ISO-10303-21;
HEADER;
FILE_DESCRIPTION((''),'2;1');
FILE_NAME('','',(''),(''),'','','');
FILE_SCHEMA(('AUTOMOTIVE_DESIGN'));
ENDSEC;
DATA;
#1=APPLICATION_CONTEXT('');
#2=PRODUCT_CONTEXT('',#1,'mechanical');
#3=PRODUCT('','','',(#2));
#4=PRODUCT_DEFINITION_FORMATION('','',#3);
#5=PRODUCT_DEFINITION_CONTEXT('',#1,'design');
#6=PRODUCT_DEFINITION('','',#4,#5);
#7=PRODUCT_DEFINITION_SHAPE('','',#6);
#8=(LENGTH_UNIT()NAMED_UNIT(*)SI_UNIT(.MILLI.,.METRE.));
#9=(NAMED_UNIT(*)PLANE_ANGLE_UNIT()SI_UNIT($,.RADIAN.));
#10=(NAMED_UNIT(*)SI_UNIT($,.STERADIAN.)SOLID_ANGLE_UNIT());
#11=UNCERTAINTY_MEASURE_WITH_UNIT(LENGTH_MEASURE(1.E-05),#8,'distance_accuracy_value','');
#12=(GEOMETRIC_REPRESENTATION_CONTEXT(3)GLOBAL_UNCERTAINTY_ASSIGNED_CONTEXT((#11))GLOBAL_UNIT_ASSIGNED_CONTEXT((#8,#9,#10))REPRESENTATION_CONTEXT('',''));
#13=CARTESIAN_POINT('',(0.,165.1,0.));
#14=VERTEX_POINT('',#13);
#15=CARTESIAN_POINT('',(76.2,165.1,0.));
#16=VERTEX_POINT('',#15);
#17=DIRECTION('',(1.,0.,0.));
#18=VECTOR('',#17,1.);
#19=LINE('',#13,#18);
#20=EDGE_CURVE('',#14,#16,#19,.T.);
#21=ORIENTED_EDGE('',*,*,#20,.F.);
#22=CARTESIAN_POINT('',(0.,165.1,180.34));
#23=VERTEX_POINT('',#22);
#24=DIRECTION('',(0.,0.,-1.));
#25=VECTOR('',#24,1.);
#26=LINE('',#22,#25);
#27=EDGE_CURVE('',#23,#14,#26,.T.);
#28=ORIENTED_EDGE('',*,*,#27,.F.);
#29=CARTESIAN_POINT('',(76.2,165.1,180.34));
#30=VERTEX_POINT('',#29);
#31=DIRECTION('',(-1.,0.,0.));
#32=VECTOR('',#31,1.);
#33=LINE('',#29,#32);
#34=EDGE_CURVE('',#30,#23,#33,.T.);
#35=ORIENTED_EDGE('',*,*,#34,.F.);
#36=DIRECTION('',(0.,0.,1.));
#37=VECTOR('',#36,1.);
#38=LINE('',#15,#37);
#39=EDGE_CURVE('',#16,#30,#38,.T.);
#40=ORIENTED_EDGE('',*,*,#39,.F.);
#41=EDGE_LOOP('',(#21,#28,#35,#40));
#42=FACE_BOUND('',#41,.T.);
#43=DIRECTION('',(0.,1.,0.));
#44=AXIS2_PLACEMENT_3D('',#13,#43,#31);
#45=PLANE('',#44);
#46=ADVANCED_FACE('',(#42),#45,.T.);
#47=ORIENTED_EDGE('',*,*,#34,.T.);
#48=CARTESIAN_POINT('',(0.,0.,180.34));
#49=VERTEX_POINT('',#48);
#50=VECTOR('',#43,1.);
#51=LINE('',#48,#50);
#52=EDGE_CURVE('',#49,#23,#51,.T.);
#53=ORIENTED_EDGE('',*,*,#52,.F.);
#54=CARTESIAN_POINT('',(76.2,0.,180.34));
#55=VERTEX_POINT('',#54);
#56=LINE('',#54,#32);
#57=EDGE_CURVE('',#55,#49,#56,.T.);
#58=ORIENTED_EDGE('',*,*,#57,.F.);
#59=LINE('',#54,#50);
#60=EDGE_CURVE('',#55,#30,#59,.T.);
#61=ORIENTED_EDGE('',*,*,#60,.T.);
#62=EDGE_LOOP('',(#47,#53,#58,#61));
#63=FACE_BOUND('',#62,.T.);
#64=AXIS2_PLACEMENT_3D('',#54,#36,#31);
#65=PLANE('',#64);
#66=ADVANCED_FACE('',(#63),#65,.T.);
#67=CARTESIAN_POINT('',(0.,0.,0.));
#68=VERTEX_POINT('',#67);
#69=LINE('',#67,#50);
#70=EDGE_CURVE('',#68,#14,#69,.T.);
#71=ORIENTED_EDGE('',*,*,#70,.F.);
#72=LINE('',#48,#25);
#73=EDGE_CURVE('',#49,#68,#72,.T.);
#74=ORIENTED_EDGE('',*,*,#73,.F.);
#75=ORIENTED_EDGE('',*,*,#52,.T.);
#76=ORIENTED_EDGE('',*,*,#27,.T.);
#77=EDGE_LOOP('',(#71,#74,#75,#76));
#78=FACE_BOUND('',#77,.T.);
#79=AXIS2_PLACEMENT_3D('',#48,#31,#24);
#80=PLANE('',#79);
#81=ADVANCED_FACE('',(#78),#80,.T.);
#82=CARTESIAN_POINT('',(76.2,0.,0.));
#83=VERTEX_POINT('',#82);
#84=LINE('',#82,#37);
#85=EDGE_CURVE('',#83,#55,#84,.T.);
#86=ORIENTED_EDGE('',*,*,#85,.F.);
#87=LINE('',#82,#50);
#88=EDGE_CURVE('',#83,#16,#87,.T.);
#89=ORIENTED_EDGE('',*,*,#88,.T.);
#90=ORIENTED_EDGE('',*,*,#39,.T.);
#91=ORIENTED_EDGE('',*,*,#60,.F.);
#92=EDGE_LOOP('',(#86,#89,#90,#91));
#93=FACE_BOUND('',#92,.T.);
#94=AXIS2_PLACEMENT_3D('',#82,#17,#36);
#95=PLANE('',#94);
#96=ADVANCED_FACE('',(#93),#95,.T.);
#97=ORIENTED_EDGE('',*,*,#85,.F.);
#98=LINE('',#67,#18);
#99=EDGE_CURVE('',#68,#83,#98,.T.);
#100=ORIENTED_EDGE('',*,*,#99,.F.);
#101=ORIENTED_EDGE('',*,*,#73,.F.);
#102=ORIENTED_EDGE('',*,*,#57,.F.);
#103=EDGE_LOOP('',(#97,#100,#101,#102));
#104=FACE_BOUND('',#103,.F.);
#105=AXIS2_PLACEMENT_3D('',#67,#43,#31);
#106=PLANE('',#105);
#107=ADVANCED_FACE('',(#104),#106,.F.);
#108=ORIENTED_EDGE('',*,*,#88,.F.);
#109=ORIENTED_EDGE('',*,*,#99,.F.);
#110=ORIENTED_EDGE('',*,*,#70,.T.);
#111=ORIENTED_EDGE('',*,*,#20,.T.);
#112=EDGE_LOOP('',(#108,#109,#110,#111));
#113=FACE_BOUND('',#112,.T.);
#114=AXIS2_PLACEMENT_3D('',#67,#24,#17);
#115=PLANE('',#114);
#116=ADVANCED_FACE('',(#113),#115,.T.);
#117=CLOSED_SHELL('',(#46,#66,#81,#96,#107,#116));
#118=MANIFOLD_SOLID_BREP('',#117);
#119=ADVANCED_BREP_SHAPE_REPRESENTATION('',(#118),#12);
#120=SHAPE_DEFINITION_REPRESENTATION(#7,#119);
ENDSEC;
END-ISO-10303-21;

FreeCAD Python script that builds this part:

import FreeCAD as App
import Part
import Sketcher
Q = App.Units.Quantity

doc = App.newDocument("Part")
body = doc.addObject("PartDesign::Body", "Body")

sketch1 = doc.addObject("Sketcher::SketchObject", "Sketch")
body.addObject(sketch1)
sketch1.AttachmentSupport = (doc.XZ_Plane, [""])
sketch1.MapMode = "FlatFace"
sketch1.addGeometry([
    Part.LineSegment(App.Vector(76, 0, 0), App.Vector(0, 0, 0)),
    Part.LineSegment(App.Vector(0, 0, 0), App.Vector(0, 180, 0)),
    Part.LineSegment(App.Vector(0, 180, 0), App.Vector(76, 180, 0)),
    Part.LineSegment(App.Vector(76, 180, 0), App.Vector(76, 0, 0)),
], False)
sketch1.addConstraint([
    Sketcher.Constraint("Coincident", 0, 2, 1, 1),
    Sketcher.Constraint("Coincident", 1, 2, 2, 1),
    Sketcher.Constraint("Coincident", 2, 2, 3, 1),
    Sketcher.Constraint("Coincident", 3, 2, 0, 1),
    Sketcher.Constraint("Horizontal", 0),
    Sketcher.Constraint("Vertical", 1),
    Sketcher.Constraint("Horizontal", 2),
    Sketcher.Constraint("Vertical", 3),
    Sketcher.Constraint("Coincident", 0, 2, -1, 1),
    Sketcher.Constraint("DistanceX", 0, 2, 0, 1, Q("3 in")),
    Sketcher.Constraint("DistanceY", 1, 1, 1, 2, Q("7.1 in")),
])
pad1 = doc.addObject("PartDesign::Pad", "Pad")
body.addObject(pad1)
pad1.Profile = sketch1
pad1.Length = Q("6.5 in")
pad1.Reversed = True

doc.recompute()
